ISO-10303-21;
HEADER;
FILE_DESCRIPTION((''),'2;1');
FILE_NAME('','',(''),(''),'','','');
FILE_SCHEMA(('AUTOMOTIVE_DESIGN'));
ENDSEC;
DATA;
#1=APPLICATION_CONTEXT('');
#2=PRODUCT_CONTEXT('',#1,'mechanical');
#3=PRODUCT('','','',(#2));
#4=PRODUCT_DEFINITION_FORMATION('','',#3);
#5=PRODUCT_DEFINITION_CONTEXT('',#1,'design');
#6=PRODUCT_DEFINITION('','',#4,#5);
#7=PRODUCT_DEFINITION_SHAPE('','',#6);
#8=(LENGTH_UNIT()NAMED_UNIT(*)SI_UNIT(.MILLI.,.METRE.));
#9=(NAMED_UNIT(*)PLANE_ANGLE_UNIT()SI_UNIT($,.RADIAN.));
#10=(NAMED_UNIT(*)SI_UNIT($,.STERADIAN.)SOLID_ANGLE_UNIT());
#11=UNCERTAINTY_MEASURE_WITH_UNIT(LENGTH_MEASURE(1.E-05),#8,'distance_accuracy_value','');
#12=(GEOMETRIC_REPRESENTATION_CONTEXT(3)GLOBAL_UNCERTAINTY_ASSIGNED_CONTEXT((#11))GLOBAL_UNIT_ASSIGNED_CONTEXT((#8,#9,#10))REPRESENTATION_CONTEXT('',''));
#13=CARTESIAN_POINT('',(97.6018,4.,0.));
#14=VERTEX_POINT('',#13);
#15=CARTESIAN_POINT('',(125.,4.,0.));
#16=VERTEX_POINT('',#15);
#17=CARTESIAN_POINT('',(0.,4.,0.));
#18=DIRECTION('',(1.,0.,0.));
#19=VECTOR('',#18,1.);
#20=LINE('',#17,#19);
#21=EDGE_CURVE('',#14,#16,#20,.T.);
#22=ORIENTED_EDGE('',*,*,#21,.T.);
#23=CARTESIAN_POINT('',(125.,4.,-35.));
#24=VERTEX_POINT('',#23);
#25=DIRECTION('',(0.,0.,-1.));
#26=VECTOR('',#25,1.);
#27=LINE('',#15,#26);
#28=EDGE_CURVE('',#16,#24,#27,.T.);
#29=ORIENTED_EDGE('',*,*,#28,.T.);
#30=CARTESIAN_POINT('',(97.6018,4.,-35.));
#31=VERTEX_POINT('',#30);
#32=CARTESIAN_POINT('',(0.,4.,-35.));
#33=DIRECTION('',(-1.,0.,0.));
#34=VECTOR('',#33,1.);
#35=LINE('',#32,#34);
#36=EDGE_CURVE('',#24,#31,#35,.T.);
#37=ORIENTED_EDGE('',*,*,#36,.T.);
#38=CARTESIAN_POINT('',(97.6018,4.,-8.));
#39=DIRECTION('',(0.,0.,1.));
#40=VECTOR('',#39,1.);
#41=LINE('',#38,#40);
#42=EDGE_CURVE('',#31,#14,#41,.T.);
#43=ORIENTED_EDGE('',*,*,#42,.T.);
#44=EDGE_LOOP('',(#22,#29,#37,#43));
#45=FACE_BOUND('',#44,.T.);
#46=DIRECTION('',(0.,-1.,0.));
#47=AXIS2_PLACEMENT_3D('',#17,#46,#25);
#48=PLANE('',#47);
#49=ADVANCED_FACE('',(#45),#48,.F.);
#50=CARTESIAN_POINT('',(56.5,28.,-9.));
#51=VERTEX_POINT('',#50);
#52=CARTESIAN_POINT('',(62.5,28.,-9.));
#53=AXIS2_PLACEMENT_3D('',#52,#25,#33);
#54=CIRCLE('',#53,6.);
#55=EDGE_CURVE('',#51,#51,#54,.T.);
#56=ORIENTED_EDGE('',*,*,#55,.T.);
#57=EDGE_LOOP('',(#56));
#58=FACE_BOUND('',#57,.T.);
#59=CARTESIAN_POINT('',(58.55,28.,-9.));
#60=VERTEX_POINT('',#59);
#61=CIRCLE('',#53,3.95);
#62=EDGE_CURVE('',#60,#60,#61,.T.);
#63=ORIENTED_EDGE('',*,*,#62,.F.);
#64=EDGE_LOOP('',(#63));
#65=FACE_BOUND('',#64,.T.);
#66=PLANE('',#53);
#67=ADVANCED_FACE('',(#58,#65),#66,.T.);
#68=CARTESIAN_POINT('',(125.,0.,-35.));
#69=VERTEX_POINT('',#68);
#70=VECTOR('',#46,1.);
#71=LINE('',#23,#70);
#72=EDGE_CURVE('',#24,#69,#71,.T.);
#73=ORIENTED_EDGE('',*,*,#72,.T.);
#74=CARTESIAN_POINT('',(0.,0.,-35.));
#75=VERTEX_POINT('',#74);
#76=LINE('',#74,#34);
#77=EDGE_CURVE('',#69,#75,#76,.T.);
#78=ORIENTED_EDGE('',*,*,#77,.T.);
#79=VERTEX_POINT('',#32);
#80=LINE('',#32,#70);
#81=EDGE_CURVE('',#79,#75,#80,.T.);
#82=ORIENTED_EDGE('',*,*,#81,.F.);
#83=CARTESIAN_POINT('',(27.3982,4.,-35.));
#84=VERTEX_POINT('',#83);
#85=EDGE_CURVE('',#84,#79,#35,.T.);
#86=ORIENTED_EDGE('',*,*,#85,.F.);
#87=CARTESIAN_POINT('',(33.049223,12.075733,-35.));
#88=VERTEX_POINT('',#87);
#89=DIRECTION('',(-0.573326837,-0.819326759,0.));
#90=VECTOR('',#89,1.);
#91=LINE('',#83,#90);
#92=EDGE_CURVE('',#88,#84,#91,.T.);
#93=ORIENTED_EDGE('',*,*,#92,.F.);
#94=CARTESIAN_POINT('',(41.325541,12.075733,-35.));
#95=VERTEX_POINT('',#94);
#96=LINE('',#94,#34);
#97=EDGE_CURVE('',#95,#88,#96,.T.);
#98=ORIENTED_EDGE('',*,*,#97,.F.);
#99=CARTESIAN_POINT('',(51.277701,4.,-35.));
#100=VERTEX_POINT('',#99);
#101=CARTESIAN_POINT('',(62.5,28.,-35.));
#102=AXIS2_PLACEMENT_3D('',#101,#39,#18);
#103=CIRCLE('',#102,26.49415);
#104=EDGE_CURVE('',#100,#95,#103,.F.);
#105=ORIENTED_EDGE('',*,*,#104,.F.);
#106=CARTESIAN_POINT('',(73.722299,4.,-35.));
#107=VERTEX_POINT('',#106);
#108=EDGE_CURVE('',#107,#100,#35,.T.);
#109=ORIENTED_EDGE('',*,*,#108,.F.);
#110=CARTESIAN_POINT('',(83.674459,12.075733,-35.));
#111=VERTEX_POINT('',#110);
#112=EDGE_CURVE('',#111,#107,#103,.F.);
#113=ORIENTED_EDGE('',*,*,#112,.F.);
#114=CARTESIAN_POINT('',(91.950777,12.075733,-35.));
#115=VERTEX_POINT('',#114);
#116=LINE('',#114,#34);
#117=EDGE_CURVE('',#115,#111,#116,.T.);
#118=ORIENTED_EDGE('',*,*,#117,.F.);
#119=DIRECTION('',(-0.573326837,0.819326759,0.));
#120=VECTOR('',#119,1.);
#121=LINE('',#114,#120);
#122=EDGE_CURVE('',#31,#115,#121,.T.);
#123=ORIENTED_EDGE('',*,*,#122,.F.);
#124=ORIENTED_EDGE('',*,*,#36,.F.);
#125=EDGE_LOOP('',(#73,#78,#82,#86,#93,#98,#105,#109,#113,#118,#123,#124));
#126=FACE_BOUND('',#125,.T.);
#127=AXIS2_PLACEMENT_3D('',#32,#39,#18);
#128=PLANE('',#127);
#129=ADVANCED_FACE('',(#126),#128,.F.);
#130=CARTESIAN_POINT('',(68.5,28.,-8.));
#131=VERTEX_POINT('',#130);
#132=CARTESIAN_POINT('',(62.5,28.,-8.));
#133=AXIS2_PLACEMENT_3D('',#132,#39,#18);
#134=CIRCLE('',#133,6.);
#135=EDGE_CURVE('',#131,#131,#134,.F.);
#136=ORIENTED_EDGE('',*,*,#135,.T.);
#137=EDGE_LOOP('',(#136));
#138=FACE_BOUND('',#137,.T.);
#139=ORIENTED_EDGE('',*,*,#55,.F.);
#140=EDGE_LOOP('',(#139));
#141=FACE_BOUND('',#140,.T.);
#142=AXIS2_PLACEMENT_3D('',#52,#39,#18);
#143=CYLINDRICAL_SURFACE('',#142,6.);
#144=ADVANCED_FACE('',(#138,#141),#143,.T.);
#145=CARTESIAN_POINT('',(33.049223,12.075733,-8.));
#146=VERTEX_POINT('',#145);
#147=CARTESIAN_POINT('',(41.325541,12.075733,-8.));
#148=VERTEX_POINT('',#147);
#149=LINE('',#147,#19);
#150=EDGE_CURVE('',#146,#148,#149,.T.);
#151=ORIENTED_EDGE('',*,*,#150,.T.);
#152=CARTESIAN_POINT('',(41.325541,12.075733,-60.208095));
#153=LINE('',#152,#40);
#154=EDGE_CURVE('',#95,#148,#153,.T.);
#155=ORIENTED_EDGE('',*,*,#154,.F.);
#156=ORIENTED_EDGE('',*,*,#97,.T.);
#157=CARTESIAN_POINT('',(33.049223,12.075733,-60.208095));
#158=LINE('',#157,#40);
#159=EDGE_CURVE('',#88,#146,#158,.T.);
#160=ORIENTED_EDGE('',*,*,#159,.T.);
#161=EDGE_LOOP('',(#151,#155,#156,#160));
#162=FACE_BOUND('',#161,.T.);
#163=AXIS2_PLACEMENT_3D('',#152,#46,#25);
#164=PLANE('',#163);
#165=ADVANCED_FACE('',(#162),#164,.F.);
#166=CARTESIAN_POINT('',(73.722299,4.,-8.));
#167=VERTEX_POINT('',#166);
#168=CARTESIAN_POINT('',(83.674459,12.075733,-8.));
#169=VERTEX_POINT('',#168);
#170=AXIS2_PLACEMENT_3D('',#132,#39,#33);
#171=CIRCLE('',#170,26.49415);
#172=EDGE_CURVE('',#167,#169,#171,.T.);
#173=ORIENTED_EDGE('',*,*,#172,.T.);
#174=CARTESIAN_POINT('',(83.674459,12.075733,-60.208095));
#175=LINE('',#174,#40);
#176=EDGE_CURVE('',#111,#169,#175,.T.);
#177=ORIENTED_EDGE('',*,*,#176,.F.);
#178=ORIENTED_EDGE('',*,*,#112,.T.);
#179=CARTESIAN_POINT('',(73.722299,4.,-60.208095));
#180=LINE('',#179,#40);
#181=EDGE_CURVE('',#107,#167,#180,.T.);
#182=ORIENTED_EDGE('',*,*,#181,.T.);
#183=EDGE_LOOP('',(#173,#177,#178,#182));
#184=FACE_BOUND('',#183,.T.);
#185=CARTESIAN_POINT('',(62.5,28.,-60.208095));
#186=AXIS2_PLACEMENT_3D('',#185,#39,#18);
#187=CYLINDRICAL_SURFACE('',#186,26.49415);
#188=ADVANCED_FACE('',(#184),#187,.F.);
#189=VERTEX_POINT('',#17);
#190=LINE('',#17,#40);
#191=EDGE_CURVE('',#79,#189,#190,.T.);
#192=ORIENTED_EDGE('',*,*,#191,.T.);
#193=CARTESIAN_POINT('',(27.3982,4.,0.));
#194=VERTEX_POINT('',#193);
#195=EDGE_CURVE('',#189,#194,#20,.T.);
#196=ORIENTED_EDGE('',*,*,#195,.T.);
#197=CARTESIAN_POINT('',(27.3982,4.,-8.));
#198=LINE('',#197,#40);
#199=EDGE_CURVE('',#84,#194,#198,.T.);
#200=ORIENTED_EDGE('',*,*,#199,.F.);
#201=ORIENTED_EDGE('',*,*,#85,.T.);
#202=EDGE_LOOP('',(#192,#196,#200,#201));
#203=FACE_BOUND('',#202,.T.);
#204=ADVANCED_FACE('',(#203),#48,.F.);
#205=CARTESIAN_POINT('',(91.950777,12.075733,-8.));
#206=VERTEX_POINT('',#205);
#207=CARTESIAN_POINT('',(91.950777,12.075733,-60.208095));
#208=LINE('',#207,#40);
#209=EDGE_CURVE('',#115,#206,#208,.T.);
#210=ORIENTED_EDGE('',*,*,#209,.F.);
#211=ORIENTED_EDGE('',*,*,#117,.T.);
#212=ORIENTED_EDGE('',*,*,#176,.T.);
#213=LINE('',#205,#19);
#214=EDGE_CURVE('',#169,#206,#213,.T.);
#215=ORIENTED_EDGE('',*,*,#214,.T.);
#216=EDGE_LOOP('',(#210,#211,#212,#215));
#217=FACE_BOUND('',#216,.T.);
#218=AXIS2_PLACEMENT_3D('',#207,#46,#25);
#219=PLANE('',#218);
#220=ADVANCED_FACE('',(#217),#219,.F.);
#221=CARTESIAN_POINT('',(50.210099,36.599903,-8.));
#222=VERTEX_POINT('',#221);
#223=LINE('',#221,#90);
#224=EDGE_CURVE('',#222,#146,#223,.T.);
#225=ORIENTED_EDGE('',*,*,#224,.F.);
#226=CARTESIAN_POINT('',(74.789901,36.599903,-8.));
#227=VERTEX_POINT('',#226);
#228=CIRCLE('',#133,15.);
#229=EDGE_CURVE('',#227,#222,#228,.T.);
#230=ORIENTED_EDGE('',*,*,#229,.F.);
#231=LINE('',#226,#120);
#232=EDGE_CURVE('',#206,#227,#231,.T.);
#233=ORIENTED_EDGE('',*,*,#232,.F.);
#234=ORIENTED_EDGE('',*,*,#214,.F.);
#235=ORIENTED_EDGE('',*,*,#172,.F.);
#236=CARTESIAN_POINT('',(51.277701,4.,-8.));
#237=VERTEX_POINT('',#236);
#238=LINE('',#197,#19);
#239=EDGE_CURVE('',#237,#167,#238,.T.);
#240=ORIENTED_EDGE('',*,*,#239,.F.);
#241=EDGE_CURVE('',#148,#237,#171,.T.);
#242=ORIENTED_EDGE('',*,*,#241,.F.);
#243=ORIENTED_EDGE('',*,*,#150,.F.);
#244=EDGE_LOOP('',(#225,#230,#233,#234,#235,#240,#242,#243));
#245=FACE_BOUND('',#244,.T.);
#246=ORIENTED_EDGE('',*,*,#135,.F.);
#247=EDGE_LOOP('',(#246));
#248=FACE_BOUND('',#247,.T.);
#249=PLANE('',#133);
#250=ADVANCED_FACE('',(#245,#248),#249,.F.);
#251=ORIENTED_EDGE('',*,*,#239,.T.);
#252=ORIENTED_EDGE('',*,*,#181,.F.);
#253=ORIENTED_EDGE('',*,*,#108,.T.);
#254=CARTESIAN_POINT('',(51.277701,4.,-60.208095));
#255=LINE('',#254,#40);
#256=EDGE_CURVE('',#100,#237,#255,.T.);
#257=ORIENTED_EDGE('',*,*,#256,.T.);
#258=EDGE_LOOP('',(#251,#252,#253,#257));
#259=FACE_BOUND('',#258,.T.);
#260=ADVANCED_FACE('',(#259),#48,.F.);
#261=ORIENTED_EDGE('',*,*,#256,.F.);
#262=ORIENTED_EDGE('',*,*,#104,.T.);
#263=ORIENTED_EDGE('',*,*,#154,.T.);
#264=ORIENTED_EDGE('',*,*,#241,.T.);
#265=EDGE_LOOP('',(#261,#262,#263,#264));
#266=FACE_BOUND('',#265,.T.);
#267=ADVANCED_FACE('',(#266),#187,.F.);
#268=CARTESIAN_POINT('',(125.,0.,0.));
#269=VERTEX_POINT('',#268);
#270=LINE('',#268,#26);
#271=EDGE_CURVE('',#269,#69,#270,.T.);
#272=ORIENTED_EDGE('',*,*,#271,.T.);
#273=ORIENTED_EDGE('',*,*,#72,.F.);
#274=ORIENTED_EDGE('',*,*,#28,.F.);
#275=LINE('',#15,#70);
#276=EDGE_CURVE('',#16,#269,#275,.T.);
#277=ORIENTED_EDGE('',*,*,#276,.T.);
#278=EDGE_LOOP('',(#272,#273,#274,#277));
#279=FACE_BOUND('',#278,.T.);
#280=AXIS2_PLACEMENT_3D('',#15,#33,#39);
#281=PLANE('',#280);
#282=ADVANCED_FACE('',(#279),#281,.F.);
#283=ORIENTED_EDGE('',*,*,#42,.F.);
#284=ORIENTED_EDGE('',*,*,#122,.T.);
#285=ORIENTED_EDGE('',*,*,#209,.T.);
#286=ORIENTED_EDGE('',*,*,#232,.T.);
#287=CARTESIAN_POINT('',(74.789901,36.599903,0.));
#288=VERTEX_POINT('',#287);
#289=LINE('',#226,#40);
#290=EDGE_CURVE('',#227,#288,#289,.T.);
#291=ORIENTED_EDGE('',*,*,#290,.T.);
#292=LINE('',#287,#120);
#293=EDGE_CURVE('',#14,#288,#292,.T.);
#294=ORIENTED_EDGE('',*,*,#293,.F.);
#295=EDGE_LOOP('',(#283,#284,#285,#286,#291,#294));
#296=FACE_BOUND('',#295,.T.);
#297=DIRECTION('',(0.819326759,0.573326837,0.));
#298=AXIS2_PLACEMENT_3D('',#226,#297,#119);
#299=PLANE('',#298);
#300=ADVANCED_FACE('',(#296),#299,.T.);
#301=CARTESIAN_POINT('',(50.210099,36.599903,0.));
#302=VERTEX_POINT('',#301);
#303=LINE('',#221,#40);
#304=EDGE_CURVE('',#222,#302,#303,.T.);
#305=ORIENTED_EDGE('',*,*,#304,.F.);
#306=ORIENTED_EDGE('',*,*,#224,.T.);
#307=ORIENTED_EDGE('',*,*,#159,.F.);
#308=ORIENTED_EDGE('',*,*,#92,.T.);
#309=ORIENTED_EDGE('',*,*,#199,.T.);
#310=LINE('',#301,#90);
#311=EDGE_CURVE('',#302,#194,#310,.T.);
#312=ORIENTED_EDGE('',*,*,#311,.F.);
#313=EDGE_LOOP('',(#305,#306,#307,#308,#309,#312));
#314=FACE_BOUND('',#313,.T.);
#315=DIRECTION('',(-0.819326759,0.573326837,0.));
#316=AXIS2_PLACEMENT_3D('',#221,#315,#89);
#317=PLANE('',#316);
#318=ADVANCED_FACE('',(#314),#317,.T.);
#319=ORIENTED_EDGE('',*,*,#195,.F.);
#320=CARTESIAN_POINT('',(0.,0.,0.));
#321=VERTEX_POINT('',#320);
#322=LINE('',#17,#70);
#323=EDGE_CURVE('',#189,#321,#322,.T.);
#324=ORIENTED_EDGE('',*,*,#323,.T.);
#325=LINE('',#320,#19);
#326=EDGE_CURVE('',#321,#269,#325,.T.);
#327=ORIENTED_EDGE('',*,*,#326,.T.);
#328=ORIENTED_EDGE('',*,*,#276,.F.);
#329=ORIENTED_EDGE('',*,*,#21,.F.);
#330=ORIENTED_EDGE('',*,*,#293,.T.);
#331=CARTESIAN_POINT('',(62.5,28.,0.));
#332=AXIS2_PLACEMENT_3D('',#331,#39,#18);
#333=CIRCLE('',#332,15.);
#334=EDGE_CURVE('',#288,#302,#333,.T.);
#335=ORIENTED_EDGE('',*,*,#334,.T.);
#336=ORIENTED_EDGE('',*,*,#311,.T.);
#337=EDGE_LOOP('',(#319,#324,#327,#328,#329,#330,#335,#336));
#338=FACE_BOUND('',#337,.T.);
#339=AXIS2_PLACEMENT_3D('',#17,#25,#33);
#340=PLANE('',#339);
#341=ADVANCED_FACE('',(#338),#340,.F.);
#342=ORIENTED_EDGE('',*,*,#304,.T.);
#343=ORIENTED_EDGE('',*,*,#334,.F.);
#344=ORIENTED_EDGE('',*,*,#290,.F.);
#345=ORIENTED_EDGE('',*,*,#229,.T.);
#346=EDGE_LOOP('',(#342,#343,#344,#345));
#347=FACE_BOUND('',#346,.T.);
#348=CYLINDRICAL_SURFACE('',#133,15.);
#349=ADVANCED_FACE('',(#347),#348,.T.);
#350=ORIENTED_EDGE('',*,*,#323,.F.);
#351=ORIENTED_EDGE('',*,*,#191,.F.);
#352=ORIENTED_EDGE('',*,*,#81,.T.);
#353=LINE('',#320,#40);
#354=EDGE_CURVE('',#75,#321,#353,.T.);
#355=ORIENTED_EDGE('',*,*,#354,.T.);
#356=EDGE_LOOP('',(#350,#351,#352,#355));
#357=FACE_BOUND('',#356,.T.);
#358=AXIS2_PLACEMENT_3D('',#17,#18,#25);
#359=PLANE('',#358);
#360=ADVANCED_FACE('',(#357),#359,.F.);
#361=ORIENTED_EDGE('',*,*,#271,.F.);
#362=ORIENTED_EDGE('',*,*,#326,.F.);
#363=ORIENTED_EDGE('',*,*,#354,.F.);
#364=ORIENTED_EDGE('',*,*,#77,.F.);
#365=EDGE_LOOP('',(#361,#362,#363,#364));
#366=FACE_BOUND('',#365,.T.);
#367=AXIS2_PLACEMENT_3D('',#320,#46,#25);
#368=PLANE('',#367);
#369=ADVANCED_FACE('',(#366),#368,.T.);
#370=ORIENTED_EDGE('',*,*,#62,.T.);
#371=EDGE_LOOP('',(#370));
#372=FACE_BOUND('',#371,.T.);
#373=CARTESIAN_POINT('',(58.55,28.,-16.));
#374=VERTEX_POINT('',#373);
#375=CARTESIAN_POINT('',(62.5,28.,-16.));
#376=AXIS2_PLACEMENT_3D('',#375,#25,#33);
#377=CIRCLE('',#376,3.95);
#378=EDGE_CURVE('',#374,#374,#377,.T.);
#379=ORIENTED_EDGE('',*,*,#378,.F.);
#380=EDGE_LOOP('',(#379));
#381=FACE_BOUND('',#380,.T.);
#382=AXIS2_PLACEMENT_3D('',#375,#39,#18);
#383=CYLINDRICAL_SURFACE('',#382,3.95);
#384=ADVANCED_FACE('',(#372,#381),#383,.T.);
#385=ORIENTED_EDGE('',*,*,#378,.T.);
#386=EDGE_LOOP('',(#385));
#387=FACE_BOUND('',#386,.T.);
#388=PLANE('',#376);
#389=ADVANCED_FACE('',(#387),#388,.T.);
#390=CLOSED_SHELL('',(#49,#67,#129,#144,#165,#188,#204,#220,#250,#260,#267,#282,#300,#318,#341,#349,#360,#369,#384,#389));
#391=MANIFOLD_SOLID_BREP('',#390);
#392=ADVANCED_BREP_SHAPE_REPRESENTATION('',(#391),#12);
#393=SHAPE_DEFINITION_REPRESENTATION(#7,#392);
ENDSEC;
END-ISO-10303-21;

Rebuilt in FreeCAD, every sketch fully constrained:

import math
import FreeCAD as App
import Part
import Sketcher

V = App.Vector

doc = App.newDocument("Part")
body = doc.addObject("PartDesign::Body", "Body")

sketch1 = doc.addObject("Sketcher::SketchObject", "Sketch")
body.addObject(sketch1)
sketch1.AttachmentSupport = (doc.XZ_Plane, [""])
sketch1.MapMode = "FlatFace"
sketch1.addGeometry([
    Part.LineSegment(V(0, -35, 0), V(0, 0, 0)),
    Part.LineSegment(V(0, 0, 0), V(125, 0, 0)),
    Part.LineSegment(V(125, 0, 0), V(125, -35, 0)),
    Part.LineSegment(V(125, -35, 0), V(0, -35, 0)),
], False)
sketch1.addConstraint([
    Sketcher.Constraint("Coincident", 0, 2, 1, 1),
    Sketcher.Constraint("Coincident", 1, 2, 2, 1),
    Sketcher.Constraint("Coincident", 2, 2, 3, 1),
    Sketcher.Constraint("Coincident", 3, 2, 0, 1),
    Sketcher.Constraint("Vertical", 0),
    Sketcher.Constraint("Horizontal", 1),
    Sketcher.Constraint("Vertical", 2),
    Sketcher.Constraint("Horizontal", 3),
    Sketcher.Constraint("Coincident", 0, 2, -1, 1),
    Sketcher.Constraint("DistanceX", 1, 1, 1, 2, 125.0),
    Sketcher.Constraint("DistanceY", 0, 1, 0, 2, 35.0),
])
pad1 = doc.addObject("PartDesign::Pad", "Pad")
body.addObject(pad1)
pad1.Profile = sketch1
pad1.Length = 4
pad1.Reversed = True

sketch2 = doc.addObject("Sketcher::SketchObject", "Sketch001")
body.addObject(sketch2)
sketch2.AttachmentSupport = (doc.XY_Plane, [""])
sketch2.MapMode = "FlatFace"
sketch2.addGeometry([
    Part.LineSegment(V(50, 37, 0), V(27, 4, 0)),
    Part.LineSegment(V(27, 4, 0), V(98, 4, 0)),
    Part.LineSegment(V(98, 4, 0), V(75, 37, 0)),
    Part.ArcOfCircle(Part.Circle(V(62, 28, 0), V(0, 0, 1), 15), math.radians(35), math.radians(145)),
], False)
sketch2.addConstraint([
    Sketcher.Constraint("Coincident", 0, 2, 1, 1),
    Sketcher.Constraint("Coincident", 1, 2, 2, 1),
    Sketcher.Constraint("Tangent", 2, 2, 3, 1),
    Sketcher.Constraint("Tangent", 3, 2, 0, 1),
    Sketcher.Constraint("Horizontal", 1),
    Sketcher.Constraint("Horizontal", 2, 2, 3, 2),
    Sketcher.Constraint("Radius", 3, 15.0),
    Sketcher.Constraint("DistanceY", -1, 1, 3, 3, 28.0),
    Sketcher.Constraint("DistanceY", -1, 1, 0, 2, 4.0),
    Sketcher.Constraint("DistanceX", -1, 1, 3, 3, 62.5),
    Sketcher.Constraint("DistanceX", 1, 1, 1, 2, 70.2036),
])
pad2 = doc.addObject("PartDesign::Pad", "Pad001")
body.addObject(pad2)
pad2.Profile = sketch2
pad2.Length = 8
pad2.Reversed = True

sketch3 = doc.addObject("Sketcher::SketchObject", "Sketch002")
body.addObject(sketch3)
sketch3.AttachmentSupport = (doc.XY_Plane, [""])
sketch3.MapMode = "FlatFace"
sketch3.AttachmentOffset = App.Placement(V(0, 0, -8), App.Rotation())
sketch3.addGeometry(Part.Circle(V(62, 28, 0), V(0, 0, 1), 6), False)
sketch3.addConstraint([
    Sketcher.Constraint("Diameter", 0, 12.0),
    Sketcher.Constraint("DistanceY", -1, 1, 0, 3, 28.0),
    Sketcher.Constraint("DistanceX", -1, 1, 0, 3, 62.5),
])
pad3 = doc.addObject("PartDesign::Pad", "Pad002")
body.addObject(pad3)
pad3.Profile = sketch3
pad3.Length = 1
pad3.Reversed = True

sketch4 = doc.addObject("Sketcher::SketchObject", "Sketch003")
body.addObject(sketch4)
sketch4.AttachmentSupport = (doc.XY_Plane, [""])
sketch4.MapMode = "FlatFace"
sketch4.AttachmentOffset = App.Placement(V(0, 0, -9), App.Rotation())
sketch4.addGeometry(Part.Circle(V(62.5, 28, 0), V(0, 0, 1), 4), False)
sketch4.addConstraint([
    Sketcher.Constraint("Diameter", 0, 7.9),
    Sketcher.Constraint("DistanceY", -1, 1, 0, 3, 28.0),
    Sketcher.Constraint("DistanceX", -1, 1, 0, 3, 62.5),
])
pad4 = doc.addObject("PartDesign::Pad", "Pad003")
body.addObject(pad4)
pad4.Profile = sketch4
pad4.Length = 7
pad4.Reversed = True

sketch5 = doc.addObject("Sketcher::SketchObject", "Sketch004")
body.addObject(sketch5)
sketch5.AttachmentSupport = (doc.XY_Plane, [""])
sketch5.MapMode = "FlatFace"
sketch5.AttachmentOffset = App.Placement(V(0, 0, -8), App.Rotation())
sketch5.addGeometry([
    Part.LineSegment(V(51, 4, 0), V(27, 4, 0)),
    Part.LineSegment(V(27, 4, 0), V(33, 12, 0)),
    Part.LineSegment(V(33, 12, 0), V(41, 12, 0)),
    Part.ArcOfCircle(Part.Circle(V(62, 28, 0), V(0, 0, 1), 26), math.radians(-143), math.radians(-115)),
    Part.LineSegment(V(84, 12, 0), V(92, 12, 0)),
    Part.LineSegment(V(92, 12, 0), V(98, 4, 0)),
    Part.LineSegment(V(98, 4, 0), V(74, 4, 0)),
    Part.ArcOfCircle(Part.Circle(V(63, 28, 0), V(0, 0, 1), 26), math.radians(-65), math.radians(-37)),
], False)
sketch5.addConstraint([
    Sketcher.Constraint("Coincident", 0, 2, 1, 1),
    Sketcher.Constraint("Coincident", 1, 2, 2, 1),
    Sketcher.Constraint("Coincident", 2, 2, 3, 1),
    Sketcher.Constraint("Coincident", 3, 2, 0, 1),
    Sketcher.Constraint("Coincident", 4, 2, 5, 1),
    Sketcher.Constraint("Coincident", 5, 2, 6, 1),
    Sketcher.Constraint("Coincident", 6, 2, 7, 1),
    Sketcher.Constraint("Coincident", 7, 2, 4, 1),
    Sketcher.Constraint("Horizontal", 0),
    Sketcher.Constraint("Horizontal", 2),
    Sketcher.Constraint("Horizontal", 4),
    Sketcher.Constraint("Horizontal", 6),
    Sketcher.Constraint("Coincident", 7, 3, 3, 3),
    Sketcher.Constraint("Equal", 3, 7),
    Sketcher.Constraint("Horizontal", 2, 2, 4, 2),
    Sketcher.Constraint("Horizontal", 3, 2, 5, 2),
    Sketcher.Constraint("Equal", 2, 4),
    Sketcher.Constraint("Equal", 0, 6),
    Sketcher.Constraint("DistanceY", -1, 1, 3, 3, 28.0),
    Sketcher.Constraint("DistanceY", -1, 1, 0, 2, 4.0),
    Sketcher.Constraint("DistanceX", -1, 1, 3, 3, 62.5),
    Sketcher.Constraint("Radius", 3, 26.49415),
    Sketcher.Constraint("DistanceX", 0, 2, 0, 1, 23.879502),
    Sketcher.Constraint("DistanceX", 2, 1, 2, 2, 8.276318),
    Sketcher.Constraint("DistanceX", -1, 1, 2, 2, 41.325541),
])
pad5 = doc.addObject("PartDesign::Pad", "Pad004")
body.addObject(pad5)
pad5.Profile = sketch5
pad5.Length = 27
pad5.Reversed = True

doc.recompute()
